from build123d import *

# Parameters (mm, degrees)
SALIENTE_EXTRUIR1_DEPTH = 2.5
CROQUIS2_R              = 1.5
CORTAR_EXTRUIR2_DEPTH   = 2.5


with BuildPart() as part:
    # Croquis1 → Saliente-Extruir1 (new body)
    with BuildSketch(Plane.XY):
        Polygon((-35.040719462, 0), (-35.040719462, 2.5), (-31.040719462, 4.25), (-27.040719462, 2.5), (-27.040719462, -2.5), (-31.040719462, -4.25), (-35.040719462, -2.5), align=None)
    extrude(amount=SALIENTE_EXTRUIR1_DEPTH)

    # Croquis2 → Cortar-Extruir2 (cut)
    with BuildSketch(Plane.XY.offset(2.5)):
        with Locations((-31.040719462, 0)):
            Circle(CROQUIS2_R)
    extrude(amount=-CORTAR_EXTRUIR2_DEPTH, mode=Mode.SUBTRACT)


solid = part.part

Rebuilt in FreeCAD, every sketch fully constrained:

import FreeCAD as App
import Part
import Sketcher


def add_polygon(sketch, points):
    """Adds a closed chain of lines whose ends are joined by coincident constraints."""
    first, n = sketch.GeometryCount, len(points)
    for a, b in zip(points, points[1:] + points[:1]):
        sketch.addGeometry(Part.LineSegment(App.Vector(*a, 0), App.Vector(*b, 0)), False)
    for i in range(n):
        sketch.addConstraint(Sketcher.Constraint("Coincident", first + i, 2, first + (i + 1) % n, 1))

doc = App.newDocument("Part")
body = doc.addObject("PartDesign::Body", "Body")

sketch1 = body.newObject("Sketcher::SketchObject", "Sketch")
sketch1.AttachmentSupport = (doc.getObject("XY_Plane"), [""])
sketch1.MapMode = "FlatFace"
add_polygon(sketch1, [(-35, 2.5), (-35, -2.5), (-31, -4.2), (-27, -2.5), (-27, 2.5), (-31, 4.2)])
sketch1.addConstraint(Sketcher.Constraint("Vertical", 0))
sketch1.addConstraint(Sketcher.Constraint("Vertical", 3))
sketch1.addConstraint(Sketcher.Constraint("Symmetric", 1, 2, 4, 2, -1))
sketch1.addConstraint(Sketcher.Constraint("Parallel", 1, 4))
sketch1.addConstraint(Sketcher.Constraint("Parallel", 2, 5))
sketch1.addConstraint(Sketcher.Constraint("Horizontal", 0, 2, 2, 2))
sketch1.addConstraint(Sketcher.Constraint("Horizontal", 3, 2, 5, 2))
sketch1.addConstraint(Sketcher.Constraint("DistanceY", 0, 2, 0, 1, 5.0))
sketch1.addConstraint(Sketcher.Constraint("DistanceX", 0, 2, 1, 2, 4.0))
sketch1.addConstraint(Sketcher.Constraint("DistanceY", 1, 2, 4, 2, 8.5))
sketch1.addConstraint(Sketcher.Constraint("DistanceX", 0, 2, -1, 1, 35.040719))
pad1 = body.newObject("PartDesign::Pad", "Pad")
pad1.Profile = sketch1
pad1.Length = 2.5

sketch2 = body.newObject("Sketcher::SketchObject", "Sketch001")
sketch2.AttachmentSupport = (doc.getObject("XY_Plane"), [""])
sketch2.MapMode = "FlatFace"
sketch2.AttachmentOffset = App.Placement(App.Vector(0, 0, 2.5), App.Rotation())
sketch2.addGeometry(Part.Circle(App.Vector(-31, 0, 0), App.Vector(0, 0, 1), 1.5), False)
sketch2.addConstraint(Sketcher.Constraint("PointOnObject", 0, 3, -1))
sketch2.addConstraint(Sketcher.Constraint("Diameter", 0, 3.0))
sketch2.addConstraint(Sketcher.Constraint("DistanceX", 0, 3, -1, 1, 31.040719))
pocket1 = body.newObject("PartDesign::Pocket", "Pocket")
pocket1.Profile = sketch2
pocket1.Length = 2.5

doc.recompute()
